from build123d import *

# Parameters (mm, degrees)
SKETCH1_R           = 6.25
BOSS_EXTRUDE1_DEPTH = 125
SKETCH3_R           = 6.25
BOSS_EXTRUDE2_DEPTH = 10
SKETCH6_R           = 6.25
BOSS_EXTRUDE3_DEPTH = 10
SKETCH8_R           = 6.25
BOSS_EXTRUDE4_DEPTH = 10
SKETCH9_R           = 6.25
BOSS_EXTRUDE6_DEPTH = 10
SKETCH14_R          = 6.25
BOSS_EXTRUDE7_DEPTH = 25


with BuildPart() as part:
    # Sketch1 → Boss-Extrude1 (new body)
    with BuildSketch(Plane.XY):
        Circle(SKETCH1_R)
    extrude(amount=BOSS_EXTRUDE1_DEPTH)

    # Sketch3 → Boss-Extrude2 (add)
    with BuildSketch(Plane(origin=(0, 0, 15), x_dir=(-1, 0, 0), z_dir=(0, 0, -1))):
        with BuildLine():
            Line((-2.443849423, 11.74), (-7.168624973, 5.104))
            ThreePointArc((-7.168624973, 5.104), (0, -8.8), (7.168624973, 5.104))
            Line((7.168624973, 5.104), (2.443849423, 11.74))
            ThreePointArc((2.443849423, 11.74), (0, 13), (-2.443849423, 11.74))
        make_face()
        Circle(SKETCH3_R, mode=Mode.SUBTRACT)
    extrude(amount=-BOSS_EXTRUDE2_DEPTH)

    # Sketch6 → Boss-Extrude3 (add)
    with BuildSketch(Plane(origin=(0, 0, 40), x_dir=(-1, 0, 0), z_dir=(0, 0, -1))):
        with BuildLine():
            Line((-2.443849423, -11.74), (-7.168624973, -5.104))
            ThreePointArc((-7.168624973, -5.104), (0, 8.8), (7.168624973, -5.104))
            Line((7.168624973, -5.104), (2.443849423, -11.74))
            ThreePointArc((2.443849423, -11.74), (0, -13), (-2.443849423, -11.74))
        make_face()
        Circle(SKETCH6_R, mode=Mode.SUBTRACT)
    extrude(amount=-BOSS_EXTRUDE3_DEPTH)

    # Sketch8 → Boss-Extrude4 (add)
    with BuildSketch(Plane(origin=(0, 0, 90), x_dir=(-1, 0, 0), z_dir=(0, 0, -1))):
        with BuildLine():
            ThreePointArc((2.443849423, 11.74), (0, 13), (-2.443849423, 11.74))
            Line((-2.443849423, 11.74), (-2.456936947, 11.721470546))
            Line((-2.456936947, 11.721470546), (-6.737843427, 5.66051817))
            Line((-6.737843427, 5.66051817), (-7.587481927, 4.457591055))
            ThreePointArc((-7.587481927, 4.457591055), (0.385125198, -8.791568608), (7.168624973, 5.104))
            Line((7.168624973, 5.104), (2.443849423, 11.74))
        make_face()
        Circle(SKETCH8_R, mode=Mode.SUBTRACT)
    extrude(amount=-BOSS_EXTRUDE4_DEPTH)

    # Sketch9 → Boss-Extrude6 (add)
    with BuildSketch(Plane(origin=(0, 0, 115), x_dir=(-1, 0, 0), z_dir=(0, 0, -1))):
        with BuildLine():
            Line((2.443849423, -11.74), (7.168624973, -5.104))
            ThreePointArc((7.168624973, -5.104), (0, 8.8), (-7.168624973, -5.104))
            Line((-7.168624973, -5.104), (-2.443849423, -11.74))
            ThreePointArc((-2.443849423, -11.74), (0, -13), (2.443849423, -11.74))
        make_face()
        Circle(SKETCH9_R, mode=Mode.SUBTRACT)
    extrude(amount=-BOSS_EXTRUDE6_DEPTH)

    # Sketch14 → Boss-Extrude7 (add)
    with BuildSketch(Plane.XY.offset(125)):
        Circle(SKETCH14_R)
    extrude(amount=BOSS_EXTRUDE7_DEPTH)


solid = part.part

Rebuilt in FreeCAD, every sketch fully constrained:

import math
import FreeCAD as App
import Part
import Sketcher

doc = App.newDocument("Part")
body = doc.addObject("PartDesign::Body", "Body")

# Sketch on XY plane
sketch1 = body.newObject("Sketcher::SketchObject", "Sketch")
sketch1.AttachmentSupport = (doc.getObject("XY_Plane"), [""])
sketch1.MapMode = "FlatFace"
sketch1.addGeometry(Part.Circle(App.Vector(0, 0, 0), App.Vector(0, 0, 1), 6), False)
sketch1.addConstraint([
    Sketcher.Constraint("Coincident", 0, 3, -1, 1),
    Sketcher.Constraint("Diameter", 0, 12.5),
])
pad1 = body.newObject("PartDesign::Pad", "Pad")
pad1.Profile = sketch1
pad1.Length = 125

# Sketch on XY plane
sketch2 = body.newObject("Sketcher::SketchObject", "Sketch001")
sketch2.AttachmentSupport = (doc.getObject("XY_Plane"), [""])
sketch2.MapMode = "FlatFace"
sketch2.AttachmentOffset = App.Placement(App.Vector(0, 0, 15), App.Rotation())
sketch2.addGeometry([
    Part.LineSegment(App.Vector(2.4, 11.7, 0), App.Vector(7.2, 5.1, 0)),  # 0
    Part.ArcOfCircle(Part.Circle(App.Vector(0, 0, 0), App.Vector(0, 0, 1), 8.8), math.radians(145), math.radians(395)),  # 1
    Part.LineSegment(App.Vector(-7.2, 5.1, 0), App.Vector(-2.4, 11.7, 0)),  # 2
    Part.ArcOfCircle(Part.Circle(App.Vector(0, 10, 0), App.Vector(0, 0, 1), 3), math.radians(35), math.radians(145)),  # 3
    Part.Circle(App.Vector(0, 0, 0), App.Vector(0, 0, 1), 6.2),  # 4
], False)
sketch2.addConstraint([
    Sketcher.Constraint("Tangent", 0, 2, 1, 2),
    Sketcher.Constraint("Tangent", 1, 1, 2, 1),
    Sketcher.Constraint("Tangent", 2, 2, 3, 2),
    Sketcher.Constraint("Tangent", 3, 1, 0, 1),
    Sketcher.Constraint("Coincident", 1, 3, -1, 1),
    Sketcher.Constraint("Coincident", 4, 3, -1, 1),
    Sketcher.Constraint("PointOnObject", 3, 3, -2),
    Sketcher.Constraint("Radius", 3, 3.0),
    Sketcher.Constraint("Diameter", 4, 12.5),
    Sketcher.Constraint("Radius", 1, 8.8),
    Sketcher.Constraint("DistanceY", -1, 1, 3, 3, 10.0),
])
pad2 = body.newObject("PartDesign::Pad", "Pad001")
pad2.Profile = sketch2
pad2.Length = 10

# Sketch on XY plane
sketch3 = body.newObject("Sketcher::SketchObject", "Sketch002")
sketch3.AttachmentSupport = (doc.getObject("XY_Plane"), [""])
sketch3.MapMode = "FlatFace"
sketch3.AttachmentOffset = App.Placement(App.Vector(0, 0, 40), App.Rotation())
sketch3.addGeometry([
    Part.LineSegment(App.Vector(7.2, -5.1, 0), App.Vector(2.4, -11.7, 0)),  # 0
    Part.ArcOfCircle(Part.Circle(App.Vector(0, -10, 0), App.Vector(0, 0, 1), 3), math.radians(-145), math.radians(-35)),  # 1
    Part.LineSegment(App.Vector(-2.4, -11.7, 0), App.Vector(-7.2, -5.1, 0)),  # 2
    Part.ArcOfCircle(Part.Circle(App.Vector(0, 0, 0), App.Vector(0, 0, 1), 8.8), math.radians(-35), math.radians(215)),  # 3
    Part.Circle(App.Vector(0, 0, 0), App.Vector(0, 0, 1), 6.2),  # 4
], False)
sketch3.addConstraint([
    Sketcher.Constraint("Tangent", 0, 2, 1, 2),
    Sketcher.Constraint("Tangent", 1, 1, 2, 1),
    Sketcher.Constraint("Tangent", 2, 2, 3, 2),
    Sketcher.Constraint("Tangent", 3, 1, 0, 1),
    Sketcher.Constraint("Coincident", 3, 3, -1, 1),
    Sketcher.Constraint("Coincident", 4, 3, -1, 1),
    Sketcher.Constraint("PointOnObject", 1, 3, -2),
    Sketcher.Constraint("Radius", 1, 3.0),
    Sketcher.Constraint("Diameter", 4, 12.5),
    Sketcher.Constraint("Radius", 3, 8.8),
    Sketcher.Constraint("DistanceY", 1, 3, -1, 1, 10.0),
])
pad3 = body.newObject("PartDesign::Pad", "Pad002")
pad3.Profile = sketch3
pad3.Length = 10

# Sketch on XY plane
sketch4 = body.newObject("Sketcher::SketchObject", "Sketch003")
sketch4.AttachmentSupport = (doc.getObject("XY_Plane"), [""])
sketch4.MapMode = "FlatFace"
sketch4.AttachmentOffset = App.Placement(App.Vector(0, 0, 90), App.Rotation())
sketch4.addGeometry([
    Part.ArcOfCircle(Part.Circle(App.Vector(0, 10, 0), App.Vector(0, 0, 1), 3), math.radians(35.450543), math.radians(144.549457)),  # 0
    Part.LineSegment(App.Vector(2.443849, 11.74, 0), App.Vector(2.456937, 11.721471, 0)),  # 1
    Part.LineSegment(App.Vector(2.456937, 11.721471, 0), App.Vector(6.737843, 5.660518, 0)),  # 2
    Part.LineSegment(App.Vector(6.737843, 5.660518, 0), App.Vector(7.587482, 4.457591, 0)),  # 3
    Part.ArcOfCircle(Part.Circle(App.Vector(0, 0, 0), App.Vector(0, 0, 1), 8.8), math.radians(144.549457), math.radians(390.433929)),  # 4
    Part.LineSegment(App.Vector(-7.168625, 5.104, 0), App.Vector(-2.443849, 11.74, 0)),  # 5
    Part.Circle(App.Vector(0, 0, 0), App.Vector(0, 0, 1), 6.25),  # 6
], False)
sketch4.addConstraint([
    Sketcher.Constraint("Coincident", 0, 1, 1, 1),
    Sketcher.Constraint("Coincident", 1, 2, 2, 1),
    Sketcher.Constraint("Coincident", 2, 2, 3, 1),
    Sketcher.Constraint("Coincident", 3, 2, 4, 2),
    Sketcher.Constraint("Coincident", 4, 1, 5, 1),
    Sketcher.Constraint("Coincident", 5, 2, 0, 2),
    Sketcher.Constraint("Coincident", 4, 3, -1, 1),
    Sketcher.Constraint("Coincident", 6, 3, -1, 1),
    Sketcher.Constraint("PointOnObject", 0, 3, -2),
    Sketcher.Constraint("Radius", 0, 3.0),
    Sketcher.Constraint("Diameter", 6, 12.5),
    Sketcher.Constraint("Radius", 4, 8.8),
    Sketcher.Constraint("DistanceY", -1, 1, 0, 3, 10.0),
    Sketcher.Constraint("DistanceY", -1, 1, 0, 1, 11.74),
    Sketcher.Constraint("DistanceY", -1, 1, 5, 2, 11.74),
    Sketcher.Constraint("DistanceY", -1, 1, 4, 1, 5.104),
    Sketcher.Constraint("Distance", 2, 7.42033),
    Sketcher.Constraint("DistanceY", -1, 1, 1, 2, 11.721471),
    Sketcher.Constraint("DistanceY", -1, 1, 2, 2, 5.660518),
    Sketcher.Constraint("DistanceX", -1, 1, 3, 2, 7.587482),
    Sketcher.Constraint("DistanceX", 2, 2, 3, 2, 0.849639),
])
pad4 = body.newObject("PartDesign::Pad", "Pad003")
pad4.Profile = sketch4
pad4.Length = 10

# Sketch on XY plane
sketch5 = body.newObject("Sketcher::SketchObject", "Sketch004")
sketch5.AttachmentSupport = (doc.getObject("XY_Plane"), [""])
sketch5.MapMode = "FlatFace"
sketch5.AttachmentOffset = App.Placement(App.Vector(0, 0, 115), App.Rotation())
sketch5.addGeometry([
    Part.LineSegment(App.Vector(-2.4, -11.7, 0), App.Vector(-7.2, -5.1, 0)),  # 0
    Part.ArcOfCircle(Part.Circle(App.Vector(0, 0, 0), App.Vector(0, 0, 1), 8.8), math.radians(-35), math.radians(215)),  # 1
    Part.LineSegment(App.Vector(7.2, -5.1, 0), App.Vector(2.4, -11.7, 0)),  # 2
    Part.ArcOfCircle(Part.Circle(App.Vector(0, -10, 0), App.Vector(0, 0, 1), 3), math.radians(-145), math.radians(-35)),  # 3
    Part.Circle(App.Vector(0, 0, 0), App.Vector(0, 0, 1), 6.2),  # 4
], False)
sketch5.addConstraint([
    Sketcher.Constraint("Tangent", 0, 2, 1, 2),
    Sketcher.Constraint("Tangent", 1, 1, 2, 1),
    Sketcher.Constraint("Tangent", 2, 2, 3, 2),
    Sketcher.Constraint("Tangent", 3, 1, 0, 1),
    Sketcher.Constraint("Coincident", 1, 3, -1, 1),
    Sketcher.Constraint("Coincident", 4, 3, -1, 1),
    Sketcher.Constraint("PointOnObject", 3, 3, -2),
    Sketcher.Constraint("Radius", 3, 3.0),
    Sketcher.Constraint("Diameter", 4, 12.5),
    Sketcher.Constraint("Radius", 1, 8.8),
    Sketcher.Constraint("DistanceY", 3, 3, -1, 1, 10.0),
])
pad5 = body.newObject("PartDesign::Pad", "Pad004")
pad5.Profile = sketch5
pad5.Length = 10

# Sketch on XY plane
sketch6 = body.newObject("Sketcher::SketchObject", "Sketch005")
sketch6.AttachmentSupport = (doc.getObject("XY_Plane"), [""])
sketch6.MapMode = "FlatFace"
sketch6.AttachmentOffset = App.Placement(App.Vector(0, 0, 125), App.Rotation())
sketch6.addGeometry(Part.Circle(App.Vector(0, 0, 0), App.Vector(0, 0, 1), 6), False)
sketch6.addConstraint([
    Sketcher.Constraint("Coincident", 0, 3, -1, 1),
    Sketcher.Constraint("Diameter", 0, 12.5),
])
pad6 = body.newObject("PartDesign::Pad", "Pad005")
pad6.Profile = sketch6
pad6.Length = 25

doc.recompute()
